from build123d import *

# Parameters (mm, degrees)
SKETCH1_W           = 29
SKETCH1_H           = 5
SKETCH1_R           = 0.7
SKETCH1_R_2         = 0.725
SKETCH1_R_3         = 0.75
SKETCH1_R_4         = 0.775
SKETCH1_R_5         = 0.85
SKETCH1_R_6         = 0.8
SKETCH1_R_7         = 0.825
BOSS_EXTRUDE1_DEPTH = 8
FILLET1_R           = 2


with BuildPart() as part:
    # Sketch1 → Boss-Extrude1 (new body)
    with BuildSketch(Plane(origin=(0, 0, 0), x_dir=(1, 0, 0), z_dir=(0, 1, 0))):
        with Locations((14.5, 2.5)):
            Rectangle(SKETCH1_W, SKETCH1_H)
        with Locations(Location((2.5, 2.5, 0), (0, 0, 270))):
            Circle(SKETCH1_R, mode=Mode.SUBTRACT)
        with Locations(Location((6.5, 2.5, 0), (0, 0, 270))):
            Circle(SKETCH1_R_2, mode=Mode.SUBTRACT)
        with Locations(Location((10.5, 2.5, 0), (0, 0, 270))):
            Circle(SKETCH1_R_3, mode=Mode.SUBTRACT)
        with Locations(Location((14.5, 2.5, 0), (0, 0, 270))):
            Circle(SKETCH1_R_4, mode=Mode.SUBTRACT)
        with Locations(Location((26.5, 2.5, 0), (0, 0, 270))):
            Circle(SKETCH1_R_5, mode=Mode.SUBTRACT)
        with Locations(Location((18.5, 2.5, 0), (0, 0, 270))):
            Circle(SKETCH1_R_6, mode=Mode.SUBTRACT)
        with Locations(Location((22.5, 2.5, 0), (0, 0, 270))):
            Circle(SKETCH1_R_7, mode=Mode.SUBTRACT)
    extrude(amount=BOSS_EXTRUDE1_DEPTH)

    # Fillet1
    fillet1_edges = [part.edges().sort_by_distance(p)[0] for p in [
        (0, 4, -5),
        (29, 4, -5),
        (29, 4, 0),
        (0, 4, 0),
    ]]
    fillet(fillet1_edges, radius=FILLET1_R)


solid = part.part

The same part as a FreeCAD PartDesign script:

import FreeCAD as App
import Part
import Sketcher
from FreeCAD import Vector
Q = App.Units.Quantity


def edges_at(feature, points):
    """Names of the edges that pass closest to the given points."""
    edges = feature.Shape.Edges
    near = lambda p: min(range(len(edges)), key=lambda i: edges[i].distToShape(Part.Vertex(*p))[0])
    return sorted({f"Edge{near(p) + 1}" for p in points})

doc = App.newDocument("Part")
body = doc.addObject("PartDesign::Body", "Body")

sketch1 = body.newObject("Sketcher::SketchObject", "Sketch")
sketch1.AttachmentSupport = (doc.getObject("XZ_Plane"), [""])
sketch1.MapMode = "FlatFace"
sketch1.addGeometry([
    Part.LineSegment(Vector(0, -5, 0), Vector(0, 0, 0)),
    Part.LineSegment(Vector(0, 0, 0), Vector(29, 0, 0)),
    Part.LineSegment(Vector(29, 0, 0), Vector(29, -5, 0)),
    Part.LineSegment(Vector(29, -5, 0), Vector(0, -5, 0)),
    Part.Circle(Vector(2.5, -2.5, 0), Vector(0, 0, 1), 0.7),
    Part.Circle(Vector(6.5, -2.5, 0), Vector(0, 0, 1), 0.7),
    Part.Circle(Vector(10.5, -2.5, 0), Vector(0, 0, 1), 0.8),
    Part.Circle(Vector(14.5, -2.5, 0), Vector(0, 0, 1), 0.8),
    Part.Circle(Vector(18.5, -2.5, 0), Vector(0, 0, 1), 0.8),
    Part.Circle(Vector(22.5, -2.5, 0), Vector(0, 0, 1), 0.8),
    Part.Circle(Vector(26.5, -2.5, 0), Vector(0, 0, 1), 0.8),
], False)
sketch1.addConstraint([
    Sketcher.Constraint("Coincident", 0, 2, 1, 1),
    Sketcher.Constraint("Coincident", 1, 2, 2, 1),
    Sketcher.Constraint("Coincident", 2, 2, 3, 1),
    Sketcher.Constraint("Coincident", 3, 2, 0, 1),
    Sketcher.Constraint("Vertical", 0),
    Sketcher.Constraint("Horizontal", 1),
    Sketcher.Constraint("Vertical", 2),
    Sketcher.Constraint("Horizontal", 3),
    Sketcher.Constraint("Coincident", 0, 2, -1, 1),
    Sketcher.Constraint("Horizontal", 4, 3, 5, 3),
    Sketcher.Constraint("Horizontal", 5, 3, 6, 3),
    Sketcher.Constraint("Horizontal", 6, 3, 7, 3),
    Sketcher.Constraint("Horizontal", 7, 3, 8, 3),
    Sketcher.Constraint("Horizontal", 8, 3, 9, 3),
    Sketcher.Constraint("Horizontal", 9, 3, 10, 3),
    Sketcher.Constraint("Diameter", 4, Q("1.4 mm")),
    Sketcher.Constraint("Diameter", 6, Q("1.5 mm")),
    Sketcher.Constraint("Diameter", 8, Q("1.6 mm")),
    Sketcher.Constraint("Diameter", 10, Q("1.7 mm")),
    Sketcher.Constraint("Diameter", 5, Q("1.45 mm")),
    Sketcher.Constraint("Diameter", 7, Q("1.55 mm")),
    Sketcher.Constraint("Diameter", 9, Q("1.65 mm")),
    Sketcher.Constraint("DistanceX", 1, 1, 1, 2, Q("29 mm")),
    Sketcher.Constraint("DistanceY", 0, 1, 0, 2, Q("5 mm")),
    Sketcher.Constraint("DistanceX", 4, 3, 5, 3, Q("4 mm")),
    Sketcher.Constraint("DistanceX", 5, 3, 6, 3, Q("4 mm")),
    Sketcher.Constraint("DistanceX", 6, 3, 7, 3, Q("4 mm")),
    Sketcher.Constraint("DistanceX", 7, 3, 8, 3, Q("4 mm")),
    Sketcher.Constraint("DistanceX", 8, 3, 9, 3, Q("4 mm")),
    Sketcher.Constraint("DistanceX", 9, 3, 10, 3, Q("4 mm")),
    Sketcher.Constraint("DistanceX", -1, 1, 4, 3, Q("2.5 mm")),
    Sketcher.Constraint("DistanceY", 4, 3, -1, 1, Q("2.5 mm")),
])
pad1 = body.newObject("PartDesign::Pad", "Pad")
pad1.Profile = sketch1
pad1.Length = 8
pad1.Reversed = True
doc.recompute()

fillet = body.newObject("PartDesign::Fillet", "Fillet")
fillet.Base = (pad1, edges_at(pad1, [
    (0, 4, -5),
    (29, 4, -5),
    (29, 4, 0),
    (0, 4, 0),
]))
fillet.Radius = 2

doc.recompute()
